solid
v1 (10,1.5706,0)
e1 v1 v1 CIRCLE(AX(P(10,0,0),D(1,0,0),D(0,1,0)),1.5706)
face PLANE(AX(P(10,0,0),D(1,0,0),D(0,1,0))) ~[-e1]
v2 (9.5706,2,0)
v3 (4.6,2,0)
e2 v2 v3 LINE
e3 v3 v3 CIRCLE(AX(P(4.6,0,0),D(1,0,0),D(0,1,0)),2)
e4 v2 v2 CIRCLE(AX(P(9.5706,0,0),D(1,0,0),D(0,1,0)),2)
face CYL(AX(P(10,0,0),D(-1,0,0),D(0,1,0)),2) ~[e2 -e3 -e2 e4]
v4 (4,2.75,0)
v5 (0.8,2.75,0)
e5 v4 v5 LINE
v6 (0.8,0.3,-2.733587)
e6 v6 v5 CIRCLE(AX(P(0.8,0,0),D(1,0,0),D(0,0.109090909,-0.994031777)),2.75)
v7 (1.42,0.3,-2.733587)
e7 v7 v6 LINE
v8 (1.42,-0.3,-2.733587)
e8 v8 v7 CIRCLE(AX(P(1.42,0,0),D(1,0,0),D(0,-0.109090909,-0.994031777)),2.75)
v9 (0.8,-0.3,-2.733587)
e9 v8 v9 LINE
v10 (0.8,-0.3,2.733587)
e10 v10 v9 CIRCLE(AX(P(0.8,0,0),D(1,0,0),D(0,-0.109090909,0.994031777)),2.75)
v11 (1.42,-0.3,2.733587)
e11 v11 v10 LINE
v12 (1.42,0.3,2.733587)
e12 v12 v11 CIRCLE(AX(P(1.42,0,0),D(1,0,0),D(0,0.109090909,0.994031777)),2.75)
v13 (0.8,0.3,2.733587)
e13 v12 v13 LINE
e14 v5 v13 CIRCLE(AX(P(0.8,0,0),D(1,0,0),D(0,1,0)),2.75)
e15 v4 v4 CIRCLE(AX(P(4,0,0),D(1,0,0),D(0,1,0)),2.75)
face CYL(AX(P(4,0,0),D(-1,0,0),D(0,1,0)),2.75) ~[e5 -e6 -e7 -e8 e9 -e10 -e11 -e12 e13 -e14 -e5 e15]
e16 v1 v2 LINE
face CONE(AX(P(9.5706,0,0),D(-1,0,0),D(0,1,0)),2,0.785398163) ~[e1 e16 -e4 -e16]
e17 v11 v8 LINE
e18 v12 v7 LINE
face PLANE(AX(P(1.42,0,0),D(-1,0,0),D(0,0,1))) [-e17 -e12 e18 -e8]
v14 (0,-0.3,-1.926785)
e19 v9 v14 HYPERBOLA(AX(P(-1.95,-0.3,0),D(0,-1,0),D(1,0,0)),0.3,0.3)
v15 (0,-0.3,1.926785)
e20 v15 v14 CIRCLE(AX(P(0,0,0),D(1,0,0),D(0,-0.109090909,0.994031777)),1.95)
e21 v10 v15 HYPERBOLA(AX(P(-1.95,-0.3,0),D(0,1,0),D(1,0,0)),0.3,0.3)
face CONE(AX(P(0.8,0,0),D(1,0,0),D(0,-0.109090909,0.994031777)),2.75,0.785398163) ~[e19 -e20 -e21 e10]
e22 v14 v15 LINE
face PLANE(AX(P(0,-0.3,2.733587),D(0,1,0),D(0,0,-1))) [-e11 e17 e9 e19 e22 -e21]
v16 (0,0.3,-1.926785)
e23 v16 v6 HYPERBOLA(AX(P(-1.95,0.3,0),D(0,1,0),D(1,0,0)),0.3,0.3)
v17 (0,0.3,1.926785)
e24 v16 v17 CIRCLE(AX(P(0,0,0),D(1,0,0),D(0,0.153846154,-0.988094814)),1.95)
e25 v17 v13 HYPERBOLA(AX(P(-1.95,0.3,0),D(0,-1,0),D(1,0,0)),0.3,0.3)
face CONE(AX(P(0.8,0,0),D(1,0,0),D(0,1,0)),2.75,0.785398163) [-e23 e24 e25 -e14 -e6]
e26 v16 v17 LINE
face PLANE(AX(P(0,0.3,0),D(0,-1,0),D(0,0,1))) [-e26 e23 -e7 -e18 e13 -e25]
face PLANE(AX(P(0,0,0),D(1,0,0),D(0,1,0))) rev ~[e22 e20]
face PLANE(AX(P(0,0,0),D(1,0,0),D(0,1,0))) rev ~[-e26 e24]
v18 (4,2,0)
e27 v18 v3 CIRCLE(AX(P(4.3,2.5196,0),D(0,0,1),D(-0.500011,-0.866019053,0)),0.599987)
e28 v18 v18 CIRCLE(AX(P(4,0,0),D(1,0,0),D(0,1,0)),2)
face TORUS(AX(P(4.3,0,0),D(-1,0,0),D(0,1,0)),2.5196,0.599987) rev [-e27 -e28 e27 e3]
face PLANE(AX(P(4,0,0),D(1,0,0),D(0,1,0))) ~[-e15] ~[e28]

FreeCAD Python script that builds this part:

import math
import FreeCAD as App
import Part
import Sketcher


def edges_at(feature, points):
    """Names of the edges that pass closest to the given points."""
    edges = feature.Shape.Edges
    near = lambda p: min(range(len(edges)), key=lambda i: edges[i].distToShape(Part.Vertex(*p))[0])
    return sorted({f"Edge{near(p) + 1}" for p in points})


def add_polygon(sketch, points):
    """Adds a closed chain of lines whose ends are joined by coincident constraints."""
    first, n = sketch.GeometryCount, len(points)
    for a, b in zip(points, points[1:] + points[:1]):
        sketch.addGeometry(Part.LineSegment(App.Vector(*a, 0), App.Vector(*b, 0)), False)
    for i in range(n):
        sketch.addConstraint(Sketcher.Constraint("Coincident", first + i, 2, first + (i + 1) % n, 1))

doc = App.newDocument("Part")
body = doc.addObject("PartDesign::Body", "Body")

# Sketch on XY plane
sketch1 = body.newObject("Sketcher::SketchObject", "Sketch")
sketch1.AttachmentSupport = (doc.getObject("XY_Plane"), [""])
sketch1.MapMode = "FlatFace"
add_polygon(sketch1, [(0, 2.75), (0, 0), (10, 0), (10, 2), (4, 2), (4, 2.75)])  # lines 0-5
sketch1.addConstraint([
    Sketcher.Constraint("Vertical", 0),
    Sketcher.Constraint("Horizontal", 1),
    Sketcher.Constraint("Vertical", 2),
    Sketcher.Constraint("Horizontal", 3),
    Sketcher.Constraint("Vertical", 4),
    Sketcher.Constraint("Horizontal", 5),
    Sketcher.Constraint("Coincident", 0, 2, -1, 1),
    Sketcher.Constraint("DistanceX", 3, 2, 3, 1, 6.0),
    Sketcher.Constraint("DistanceX", 5, 2, 5, 1, 4.0),
    Sketcher.Constraint("DistanceY", 2, 1, 2, 2, 2.0),
    Sketcher.Constraint("DistanceY", 0, 2, 0, 1, 2.75),
])
revolution = body.newObject("PartDesign::Revolution", "Revolution")
revolution.Profile = sketch1
revolution.ReferenceAxis = (sketch1, ["H_Axis"])
revolution.Angle = 360

# Sketch on YZ plane
sketch2 = body.newObject("Sketcher::SketchObject", "Sketch001")
sketch2.AttachmentSupport = (doc.getObject("YZ_Plane"), [""])
sketch2.MapMode = "FlatFace"
add_polygon(sketch2, [(0.3, -2.75), (-0.3, -2.75), (-0.3, 2.75), (0.3, 2.75)])  # lines 0-3
sketch2.addConstraint([
    Sketcher.Constraint("Horizontal", 0),
    Sketcher.Constraint("Vertical", 1),
    Sketcher.Constraint("Horizontal", 2),
    Sketcher.Constraint("Vertical", 3),
    Sketcher.Constraint("Symmetric", 0, 2, 2, 2, -1, 1),
    Sketcher.Constraint("DistanceX", 0, 2, 0, 1, 0.6),
    Sketcher.Constraint("DistanceY", 1, 1, 1, 2, 5.5),
])
pocket1 = body.newObject("PartDesign::Pocket", "Pocket")
pocket1.Profile = sketch2
pocket1.Length = 1.42
pocket1.Reversed = True
doc.recompute()

chamfer = body.newObject("PartDesign::Chamfer", "Chamfer")
chamfer.Base = (pocket1, edges_at(pocket1, [(0, 2.048, -1.835), (0, 2.048, 1.835), (0, -2.75, 0)]))
chamfer.Size = 0.8
doc.recompute()

chamfer2 = body.newObject("PartDesign::Chamfer", "Chamfer001")
chamfer2.Base = (chamfer, edges_at(chamfer, [(10, -2, 0)]))
chamfer2.ChamferType = "Two distances"
chamfer2.Size = 0.4294
chamfer2.Size2 = 0.4294

# Sketch on XY plane
sketch3 = body.newObject("Sketcher::SketchObject", "Sketch002")
sketch3.AttachmentSupport = (doc.getObject("XY_Plane"), [""])
sketch3.MapMode = "FlatFace"
sketch3.addGeometry([
    Part.ArcOfCircle(Part.Circle(App.Vector(4.3, 2.5196, 0), App.Vector(0, 0, 1), 0.599987), math.radians(-120.000728), math.radians(-59.999272)),
    Part.LineSegment(App.Vector(4.6, 2, 0), App.Vector(4, 2, 0)),
], False)
sketch3.addConstraint([
    Sketcher.Constraint("Coincident", 0, 1, 1, 2),
    Sketcher.Constraint("Coincident", 1, 1, 0, 2),
    Sketcher.Constraint("Horizontal", 1),
    Sketcher.Constraint("Radius", 0, 0.6),
    Sketcher.Constraint("DistanceX", 1, 2, 1, 1, 0.6),
    Sketcher.Constraint("DistanceX", -1, 1, 0, 1, 4.0),
    Sketcher.Constraint("DistanceY", -1, 1, 0, 1, 2.0),
])
groove = body.newObject("PartDesign::Groove", "Groove")
groove.Profile = sketch3
groove.ReferenceAxis = (sketch3, ["H_Axis"])
groove.Angle = 360

doc.recompute()
